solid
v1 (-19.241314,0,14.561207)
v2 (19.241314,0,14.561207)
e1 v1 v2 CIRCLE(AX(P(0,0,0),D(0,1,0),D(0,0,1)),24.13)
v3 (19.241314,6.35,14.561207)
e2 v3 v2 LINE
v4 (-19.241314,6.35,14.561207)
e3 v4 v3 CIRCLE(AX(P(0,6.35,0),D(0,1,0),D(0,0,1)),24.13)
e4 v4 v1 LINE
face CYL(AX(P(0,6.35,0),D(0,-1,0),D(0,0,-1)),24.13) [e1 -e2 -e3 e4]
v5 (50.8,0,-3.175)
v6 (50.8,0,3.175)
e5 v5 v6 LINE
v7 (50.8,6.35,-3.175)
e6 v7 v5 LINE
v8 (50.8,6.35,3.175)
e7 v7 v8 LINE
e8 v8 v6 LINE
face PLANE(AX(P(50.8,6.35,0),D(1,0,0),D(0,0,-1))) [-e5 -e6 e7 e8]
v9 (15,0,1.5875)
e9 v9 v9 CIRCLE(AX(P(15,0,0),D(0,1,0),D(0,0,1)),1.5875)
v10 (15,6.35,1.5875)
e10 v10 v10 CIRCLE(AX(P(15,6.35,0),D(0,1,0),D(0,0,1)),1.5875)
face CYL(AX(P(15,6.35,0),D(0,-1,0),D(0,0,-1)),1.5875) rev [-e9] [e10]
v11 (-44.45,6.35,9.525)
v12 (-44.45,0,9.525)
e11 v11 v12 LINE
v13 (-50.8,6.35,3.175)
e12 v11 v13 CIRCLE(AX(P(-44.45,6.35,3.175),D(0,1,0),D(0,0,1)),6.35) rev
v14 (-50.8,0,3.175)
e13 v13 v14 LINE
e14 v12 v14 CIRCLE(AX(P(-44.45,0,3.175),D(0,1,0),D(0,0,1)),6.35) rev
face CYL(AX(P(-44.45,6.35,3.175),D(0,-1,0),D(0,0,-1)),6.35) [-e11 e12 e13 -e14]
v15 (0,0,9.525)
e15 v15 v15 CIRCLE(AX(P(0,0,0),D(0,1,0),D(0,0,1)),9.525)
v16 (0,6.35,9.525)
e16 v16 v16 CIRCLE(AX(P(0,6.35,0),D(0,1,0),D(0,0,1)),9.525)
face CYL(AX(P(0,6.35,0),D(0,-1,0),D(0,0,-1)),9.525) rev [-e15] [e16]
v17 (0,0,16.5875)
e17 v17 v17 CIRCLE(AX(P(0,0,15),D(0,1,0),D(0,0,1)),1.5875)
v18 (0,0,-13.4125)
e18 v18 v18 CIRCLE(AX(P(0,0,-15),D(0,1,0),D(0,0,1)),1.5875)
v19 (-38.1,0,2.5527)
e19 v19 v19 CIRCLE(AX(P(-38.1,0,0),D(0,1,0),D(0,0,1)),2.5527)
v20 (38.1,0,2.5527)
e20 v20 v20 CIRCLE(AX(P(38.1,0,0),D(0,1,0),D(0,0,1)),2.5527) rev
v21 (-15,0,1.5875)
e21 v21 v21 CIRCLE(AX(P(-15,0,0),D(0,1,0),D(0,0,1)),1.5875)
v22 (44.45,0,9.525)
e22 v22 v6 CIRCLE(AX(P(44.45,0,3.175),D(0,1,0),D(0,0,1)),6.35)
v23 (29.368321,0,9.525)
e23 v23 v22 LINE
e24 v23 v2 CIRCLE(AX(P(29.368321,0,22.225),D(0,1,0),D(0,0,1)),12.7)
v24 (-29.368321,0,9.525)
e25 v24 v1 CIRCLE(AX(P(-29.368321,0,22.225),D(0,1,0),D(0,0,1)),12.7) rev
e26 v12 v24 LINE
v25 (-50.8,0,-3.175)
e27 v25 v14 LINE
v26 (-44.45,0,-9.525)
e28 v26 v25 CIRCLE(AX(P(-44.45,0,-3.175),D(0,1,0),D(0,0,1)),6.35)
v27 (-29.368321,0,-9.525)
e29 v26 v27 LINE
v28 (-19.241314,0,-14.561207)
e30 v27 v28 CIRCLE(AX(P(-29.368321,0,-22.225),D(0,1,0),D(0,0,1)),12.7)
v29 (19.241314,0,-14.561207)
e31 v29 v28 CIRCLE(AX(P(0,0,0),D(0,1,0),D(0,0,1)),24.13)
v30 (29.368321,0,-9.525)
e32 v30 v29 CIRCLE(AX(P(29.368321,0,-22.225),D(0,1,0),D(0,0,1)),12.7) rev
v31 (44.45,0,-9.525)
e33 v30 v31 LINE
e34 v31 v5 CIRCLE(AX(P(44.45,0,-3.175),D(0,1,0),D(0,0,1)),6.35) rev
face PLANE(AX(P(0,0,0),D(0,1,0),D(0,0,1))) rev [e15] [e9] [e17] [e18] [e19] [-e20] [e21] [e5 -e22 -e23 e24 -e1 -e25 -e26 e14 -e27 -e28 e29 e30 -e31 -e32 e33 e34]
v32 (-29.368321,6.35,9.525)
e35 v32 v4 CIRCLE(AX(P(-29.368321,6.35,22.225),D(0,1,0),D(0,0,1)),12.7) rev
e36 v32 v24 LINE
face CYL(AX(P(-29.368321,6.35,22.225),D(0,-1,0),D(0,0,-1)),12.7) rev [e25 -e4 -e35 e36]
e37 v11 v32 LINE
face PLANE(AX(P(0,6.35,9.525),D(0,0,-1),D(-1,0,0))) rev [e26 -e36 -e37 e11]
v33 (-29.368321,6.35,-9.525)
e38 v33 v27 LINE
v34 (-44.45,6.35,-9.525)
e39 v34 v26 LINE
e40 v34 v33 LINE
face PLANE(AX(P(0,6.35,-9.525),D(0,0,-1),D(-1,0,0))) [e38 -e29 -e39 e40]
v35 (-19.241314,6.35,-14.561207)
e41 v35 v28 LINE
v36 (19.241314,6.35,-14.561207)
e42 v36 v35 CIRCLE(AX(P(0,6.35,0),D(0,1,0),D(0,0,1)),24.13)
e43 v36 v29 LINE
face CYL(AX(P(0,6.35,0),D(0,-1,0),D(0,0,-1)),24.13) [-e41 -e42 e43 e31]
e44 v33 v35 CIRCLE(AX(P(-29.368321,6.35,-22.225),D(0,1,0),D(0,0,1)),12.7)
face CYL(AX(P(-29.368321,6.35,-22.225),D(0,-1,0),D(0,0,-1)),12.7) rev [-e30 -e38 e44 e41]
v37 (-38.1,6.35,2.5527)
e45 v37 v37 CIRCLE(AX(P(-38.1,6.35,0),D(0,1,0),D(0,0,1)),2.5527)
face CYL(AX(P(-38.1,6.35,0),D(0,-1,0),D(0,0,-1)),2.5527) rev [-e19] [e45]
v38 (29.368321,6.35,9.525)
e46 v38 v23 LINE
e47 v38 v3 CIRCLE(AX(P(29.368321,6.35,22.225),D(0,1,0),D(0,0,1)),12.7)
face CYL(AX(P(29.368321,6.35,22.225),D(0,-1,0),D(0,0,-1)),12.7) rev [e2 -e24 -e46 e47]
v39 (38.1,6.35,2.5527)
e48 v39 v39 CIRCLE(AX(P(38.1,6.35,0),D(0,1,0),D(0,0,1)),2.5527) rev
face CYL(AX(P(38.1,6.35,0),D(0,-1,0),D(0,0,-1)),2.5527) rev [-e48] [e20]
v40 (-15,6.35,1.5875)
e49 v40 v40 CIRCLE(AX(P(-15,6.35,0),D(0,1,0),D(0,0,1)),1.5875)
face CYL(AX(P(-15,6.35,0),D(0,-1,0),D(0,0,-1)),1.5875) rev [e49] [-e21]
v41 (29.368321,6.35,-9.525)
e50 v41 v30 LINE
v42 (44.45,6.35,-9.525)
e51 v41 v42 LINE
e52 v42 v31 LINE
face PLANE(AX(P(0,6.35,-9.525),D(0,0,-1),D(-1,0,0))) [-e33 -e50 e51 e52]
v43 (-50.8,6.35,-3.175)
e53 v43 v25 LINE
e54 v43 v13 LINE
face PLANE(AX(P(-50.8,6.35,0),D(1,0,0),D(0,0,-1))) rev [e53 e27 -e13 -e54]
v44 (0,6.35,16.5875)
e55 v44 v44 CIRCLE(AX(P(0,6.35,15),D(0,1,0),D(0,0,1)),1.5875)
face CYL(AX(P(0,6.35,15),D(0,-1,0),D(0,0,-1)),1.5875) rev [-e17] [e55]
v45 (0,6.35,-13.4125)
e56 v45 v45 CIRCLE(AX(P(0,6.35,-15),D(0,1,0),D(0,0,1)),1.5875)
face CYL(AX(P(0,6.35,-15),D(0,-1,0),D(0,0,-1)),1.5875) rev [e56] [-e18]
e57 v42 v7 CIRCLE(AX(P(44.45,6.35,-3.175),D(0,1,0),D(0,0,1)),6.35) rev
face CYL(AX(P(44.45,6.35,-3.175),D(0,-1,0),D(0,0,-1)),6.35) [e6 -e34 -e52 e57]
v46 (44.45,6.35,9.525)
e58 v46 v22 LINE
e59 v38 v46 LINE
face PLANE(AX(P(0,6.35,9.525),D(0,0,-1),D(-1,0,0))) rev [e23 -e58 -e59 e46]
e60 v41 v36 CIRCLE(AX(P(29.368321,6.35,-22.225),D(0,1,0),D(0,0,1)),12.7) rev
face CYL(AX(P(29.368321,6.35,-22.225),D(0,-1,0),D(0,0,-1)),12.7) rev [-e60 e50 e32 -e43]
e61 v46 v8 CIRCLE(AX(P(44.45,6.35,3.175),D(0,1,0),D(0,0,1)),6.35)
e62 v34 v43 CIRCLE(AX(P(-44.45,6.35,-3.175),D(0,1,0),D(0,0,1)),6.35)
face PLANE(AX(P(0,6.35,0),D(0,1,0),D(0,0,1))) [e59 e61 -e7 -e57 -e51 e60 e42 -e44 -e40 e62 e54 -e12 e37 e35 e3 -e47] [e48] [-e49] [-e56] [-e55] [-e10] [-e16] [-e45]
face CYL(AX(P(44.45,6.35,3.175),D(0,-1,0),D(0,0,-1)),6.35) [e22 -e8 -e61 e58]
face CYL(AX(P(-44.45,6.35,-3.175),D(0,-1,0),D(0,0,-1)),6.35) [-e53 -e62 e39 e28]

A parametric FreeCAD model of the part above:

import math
import FreeCAD as App
import Part
import Sketcher

V = App.Vector
Q = App.Units.Quantity

doc = App.newDocument("Part")
body = doc.addObject("PartDesign::Body", "Body")

# Sketch on XZ plane
sketch1 = body.newObject("Sketcher::SketchObject", "Sketch")
sketch1.AttachmentSupport = (doc.getObject("XZ_Plane"), [""])
sketch1.MapMode = "FlatFace"
sketch1.addGeometry([
    Part.ArcOfCircle(Part.Circle(V(0, 0, 0), V(0, 0, 1), 24.1), math.radians(-143), math.radians(-37)),  # 0
    Part.ArcOfCircle(Part.Circle(V(-29.4, -22.2, 0), V(0, 0, 1), 12.7), math.radians(37), math.radians(90)),  # 1
    Part.LineSegment(V(-29.4, -9.5, 0), V(-44.5, -9.5, 0)),  # 2
    Part.ArcOfCircle(Part.Circle(V(-44.5, -3.2, 0), V(0, 0, 1), 6.3), math.radians(180), math.radians(270)),  # 3
    Part.LineSegment(V(-50.8, -3.2, 0), V(-50.8, 3.2, 0)),  # 4
    Part.ArcOfCircle(Part.Circle(V(-44.5, 3.2, 0), V(0, 0, 1), 6.3), math.radians(90), math.radians(180)),  # 5
    Part.LineSegment(V(-44.5, 9.5, 0), V(-29.4, 9.5, 0)),  # 6
    Part.ArcOfCircle(Part.Circle(V(-29.4, 22.2, 0), V(0, 0, 1), 12.7), math.radians(-90), math.radians(-37)),  # 7
    Part.ArcOfCircle(Part.Circle(V(0, 0, 0), V(0, 0, 1), 24.1), math.radians(37), math.radians(143)),  # 8
    Part.ArcOfCircle(Part.Circle(V(29.4, 22.2, 0), V(0, 0, 1), 12.7), math.radians(-143), math.radians(-90)),  # 9
    Part.LineSegment(V(29.4, 9.5, 0), V(44.5, 9.5, 0)),  # 10
    Part.ArcOfCircle(Part.Circle(V(44.5, 3.2, 0), V(0, 0, 1), 6.3), math.radians(0), math.radians(90)),  # 11
    Part.LineSegment(V(50.8, 3.2, 0), V(50.8, -3.2, 0)),  # 12
    Part.ArcOfCircle(Part.Circle(V(44.5, -3.2, 0), V(0, 0, 1), 6.3), math.radians(-90), math.radians(0)),  # 13
    Part.LineSegment(V(44.5, -9.5, 0), V(29.4, -9.5, 0)),  # 14
    Part.ArcOfCircle(Part.Circle(V(29.4, -22.2, 0), V(0, 0, 1), 12.7), math.radians(90), math.radians(143)),  # 15
    Part.ArcOfCircle(Part.Circle(V(0, 0, 0), V(0, 0, 1), 9.5), math.radians(90), math.radians(270)),  # 16
    Part.ArcOfCircle(Part.Circle(V(0, 0, 0), V(0, 0, 1), 9.5), math.radians(-90), math.radians(0)),  # 17
    Part.ArcOfCircle(Part.Circle(V(0, 0, 0), V(0, 0, 1), 9.5), math.radians(0), math.radians(90)),  # 18
    Part.Circle(V(-15, 0, 0), V(0, 0, 1), 1.6),  # 19
    Part.Circle(V(0, -15, 0), V(0, 0, 1), 1.6),  # 20
    Part.Circle(V(-38.1, 0, 0), V(0, 0, 1), 2.6),  # 21
    Part.Circle(V(0, 15, 0), V(0, 0, 1), 1.6),  # 22
    Part.Circle(V(15, 0, 0), V(0, 0, 1), 1.6),  # 23
    Part.Circle(V(38.1, 0, 0), V(0, 0, 1), 2.6),  # 24
], False)
sketch1.addConstraint([
    Sketcher.Constraint("Tangent", 0, 1, 1, 1),
    Sketcher.Constraint("Tangent", 1, 2, 2, 1),
    Sketcher.Constraint("Tangent", 2, 2, 3, 2),
    Sketcher.Constraint("Tangent", 3, 1, 4, 1),
    Sketcher.Constraint("Tangent", 4, 2, 5, 2),
    Sketcher.Constraint("Tangent", 5, 1, 6, 1),
    Sketcher.Constraint("Tangent", 6, 2, 7, 1),
    Sketcher.Constraint("Tangent", 7, 2, 8, 2),
    Sketcher.Constraint("Tangent", 8, 1, 9, 1),
    Sketcher.Constraint("Tangent", 9, 2, 10, 1),
    Sketcher.Constraint("Tangent", 10, 2, 11, 2),
    Sketcher.Constraint("Tangent", 11, 1, 12, 1),
    Sketcher.Constraint("Tangent", 12, 2, 13, 2),
    Sketcher.Constraint("Tangent", 13, 1, 14, 1),
    Sketcher.Constraint("Tangent", 14, 2, 15, 1),
    Sketcher.Constraint("Tangent", 15, 2, 0, 2),
    Sketcher.Constraint("Tangent", 16, 2, 17, 1),
    Sketcher.Constraint("Tangent", 17, 2, 18, 1),
    Sketcher.Constraint("Tangent", 18, 2, 16, 1),
    Sketcher.Constraint("Horizontal", 2),
    Sketcher.Constraint("Vertical", 4),
    Sketcher.Constraint("Horizontal", 6),
    Sketcher.Constraint("Horizontal", 10),
    Sketcher.Constraint("Vertical", 12),
    Sketcher.Constraint("Horizontal", 14),
    Sketcher.Constraint("Coincident", 0, 3, -1, 1),
    Sketcher.Constraint("Coincident", 8, 3, -1, 1),
    Sketcher.Constraint("Coincident", 16, 3, -1, 1),
    Sketcher.Constraint("Equal", 3, 5),
    Sketcher.Constraint("Equal", 1, 7),
    Sketcher.Constraint("Equal", 0, 8),
    Sketcher.Constraint("Equal", 7, 9),
    Sketcher.Constraint("Equal", 5, 11),
    Sketcher.Constraint("Equal", 11, 13),
    Sketcher.Constraint("Equal", 9, 15),
    Sketcher.Constraint("Equal", 19, 20),
    Sketcher.Constraint("Equal", 20, 22),
    Sketcher.Constraint("Equal", 22, 23),
    Sketcher.Constraint("Equal", 21, 24),
    Sketcher.Constraint("Symmetric", 3, 3, 11, 3, -1, 1),
    Sketcher.Constraint("Symmetric", 20, 3, 22, 3, -1, 1),
    Sketcher.Constraint("Symmetric", 19, 3, 23, 3, -1, 1),
    Sketcher.Constraint("Symmetric", 21, 3, 24, 3, -1, 1),
    Sketcher.Constraint("PointOnObject", 19, 3, -1),
    Sketcher.Constraint("PointOnObject", 20, 3, -2),
    Sketcher.Constraint("PointOnObject", 21, 3, -1),
    Sketcher.Constraint("PointOnObject", 16, 2, -2),
    Sketcher.Constraint("PointOnObject", 17, 2, -1),
    Sketcher.Constraint("PointOnObject", 18, 2, -2),
    Sketcher.Constraint("Horizontal", 7, 3, 9, 3),
    Sketcher.Constraint("Horizontal", 3, 3, 13, 3),
    Sketcher.Constraint("Horizontal", 14, 2, 16, 2),
    Sketcher.Constraint("Radius", 1, Q("0.5 in")),
    Sketcher.Constraint("Radius", 0, Q("0.95 in")),
    Sketcher.Constraint("Radius", 3, Q("0.25 in")),
    Sketcher.Constraint("Diameter", 19, Q("0.125 in")),
    Sketcher.Constraint("Diameter", 21, Q("0.201 in")),
    Sketcher.Constraint("DistanceX", 3, 1, -1, 1, Q("2 in")),
    Sketcher.Constraint("Radius", 16, Q("0.375 in")),
    Sketcher.Constraint("DistanceX", 21, 3, -1, 1, Q("1.5 in")),
    Sketcher.Constraint("DistanceX", 19, 3, -1, 1, 15.0),
    Sketcher.Constraint("DistanceY", 20, 3, -1, 1, 15.0),
])
pad1 = body.newObject("PartDesign::Pad", "Pad")
pad1.Profile = sketch1
pad1.Length = Q("0.25 in")
pad1.Reversed = True

doc.recompute()
